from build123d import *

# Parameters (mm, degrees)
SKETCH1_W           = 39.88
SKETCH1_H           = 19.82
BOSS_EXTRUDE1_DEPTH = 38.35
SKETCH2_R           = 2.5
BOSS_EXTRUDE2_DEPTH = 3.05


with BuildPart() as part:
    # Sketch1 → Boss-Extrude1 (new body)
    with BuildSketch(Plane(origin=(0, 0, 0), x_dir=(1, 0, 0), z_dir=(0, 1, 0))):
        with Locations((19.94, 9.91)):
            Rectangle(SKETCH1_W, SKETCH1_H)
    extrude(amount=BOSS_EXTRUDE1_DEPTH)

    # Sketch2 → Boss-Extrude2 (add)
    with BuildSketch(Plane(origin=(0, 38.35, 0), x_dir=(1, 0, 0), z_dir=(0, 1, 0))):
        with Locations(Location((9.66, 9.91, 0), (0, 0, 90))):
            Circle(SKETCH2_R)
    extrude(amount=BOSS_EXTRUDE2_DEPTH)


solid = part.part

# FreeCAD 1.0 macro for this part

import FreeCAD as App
import Part
import Sketcher
Q = App.Units.Quantity

doc = App.newDocument("Part")
body = doc.addObject("PartDesign::Body", "Body")

# Sketch on XZ plane
sketch1 = body.newObject("Sketcher::SketchObject", "Sketch")
sketch1.AttachmentSupport = (doc.getObject("XZ_Plane"), [""])
sketch1.MapMode = "FlatFace"
sketch1.addGeometry([
    Part.LineSegment(App.Vector(0, -20, 0), App.Vector(0, 0, 0)),
    Part.LineSegment(App.Vector(0, 0, 0), App.Vector(40, 0, 0)),
    Part.LineSegment(App.Vector(40, 0, 0), App.Vector(40, -20, 0)),
    Part.LineSegment(App.Vector(40, -20, 0), App.Vector(0, -20, 0)),
], False)
sketch1.addConstraint([
    Sketcher.Constraint("Coincident", 0, 2, 1, 1),
    Sketcher.Constraint("Coincident", 1, 2, 2, 1),
    Sketcher.Constraint("Coincident", 2, 2, 3, 1),
    Sketcher.Constraint("Coincident", 3, 2, 0, 1),
    Sketcher.Constraint("Vertical", 0),
    Sketcher.Constraint("Horizontal", 1),
    Sketcher.Constraint("Vertical", 2),
    Sketcher.Constraint("Horizontal", 3),
    Sketcher.Constraint("Coincident", 0, 2, -1, 1),
    Sketcher.Constraint("DistanceX", 1, 1, 1, 2, Q("39.88 mm")),
    Sketcher.Constraint("DistanceY", 0, 1, 0, 2, Q("19.82 mm")),
])
pad1 = body.newObject("PartDesign::Pad", "Pad")
pad1.Profile = sketch1
pad1.Length = 38.35
pad1.Reversed = True

# Sketch on XZ plane
sketch2 = body.newObject("Sketcher::SketchObject", "Sketch001")
sketch2.AttachmentSupport = (doc.getObject("XZ_Plane"), [""])
sketch2.MapMode = "FlatFace"
sketch2.AttachmentOffset = App.Placement(App.Vector(0, 0, -38.35), App.Rotation())
sketch2.addGeometry(Part.Circle(App.Vector(9.7, -9.9, 0), App.Vector(0, 0, 1), 2.5), False)
sketch2.addConstraint([
    Sketcher.Constraint("Diameter", 0, Q("5 mm")),
    Sketcher.Constraint("DistanceX", -1, 1, 0, 3, Q("9.66 mm")),
    Sketcher.Constraint("DistanceY", 0, 3, -1, 1, Q("9.91 mm")),
])
pad2 = body.newObject("PartDesign::Pad", "Pad001")
pad2.Profile = sketch2
pad2.Length = 3.05
pad2.Reversed = True

doc.recompute()
